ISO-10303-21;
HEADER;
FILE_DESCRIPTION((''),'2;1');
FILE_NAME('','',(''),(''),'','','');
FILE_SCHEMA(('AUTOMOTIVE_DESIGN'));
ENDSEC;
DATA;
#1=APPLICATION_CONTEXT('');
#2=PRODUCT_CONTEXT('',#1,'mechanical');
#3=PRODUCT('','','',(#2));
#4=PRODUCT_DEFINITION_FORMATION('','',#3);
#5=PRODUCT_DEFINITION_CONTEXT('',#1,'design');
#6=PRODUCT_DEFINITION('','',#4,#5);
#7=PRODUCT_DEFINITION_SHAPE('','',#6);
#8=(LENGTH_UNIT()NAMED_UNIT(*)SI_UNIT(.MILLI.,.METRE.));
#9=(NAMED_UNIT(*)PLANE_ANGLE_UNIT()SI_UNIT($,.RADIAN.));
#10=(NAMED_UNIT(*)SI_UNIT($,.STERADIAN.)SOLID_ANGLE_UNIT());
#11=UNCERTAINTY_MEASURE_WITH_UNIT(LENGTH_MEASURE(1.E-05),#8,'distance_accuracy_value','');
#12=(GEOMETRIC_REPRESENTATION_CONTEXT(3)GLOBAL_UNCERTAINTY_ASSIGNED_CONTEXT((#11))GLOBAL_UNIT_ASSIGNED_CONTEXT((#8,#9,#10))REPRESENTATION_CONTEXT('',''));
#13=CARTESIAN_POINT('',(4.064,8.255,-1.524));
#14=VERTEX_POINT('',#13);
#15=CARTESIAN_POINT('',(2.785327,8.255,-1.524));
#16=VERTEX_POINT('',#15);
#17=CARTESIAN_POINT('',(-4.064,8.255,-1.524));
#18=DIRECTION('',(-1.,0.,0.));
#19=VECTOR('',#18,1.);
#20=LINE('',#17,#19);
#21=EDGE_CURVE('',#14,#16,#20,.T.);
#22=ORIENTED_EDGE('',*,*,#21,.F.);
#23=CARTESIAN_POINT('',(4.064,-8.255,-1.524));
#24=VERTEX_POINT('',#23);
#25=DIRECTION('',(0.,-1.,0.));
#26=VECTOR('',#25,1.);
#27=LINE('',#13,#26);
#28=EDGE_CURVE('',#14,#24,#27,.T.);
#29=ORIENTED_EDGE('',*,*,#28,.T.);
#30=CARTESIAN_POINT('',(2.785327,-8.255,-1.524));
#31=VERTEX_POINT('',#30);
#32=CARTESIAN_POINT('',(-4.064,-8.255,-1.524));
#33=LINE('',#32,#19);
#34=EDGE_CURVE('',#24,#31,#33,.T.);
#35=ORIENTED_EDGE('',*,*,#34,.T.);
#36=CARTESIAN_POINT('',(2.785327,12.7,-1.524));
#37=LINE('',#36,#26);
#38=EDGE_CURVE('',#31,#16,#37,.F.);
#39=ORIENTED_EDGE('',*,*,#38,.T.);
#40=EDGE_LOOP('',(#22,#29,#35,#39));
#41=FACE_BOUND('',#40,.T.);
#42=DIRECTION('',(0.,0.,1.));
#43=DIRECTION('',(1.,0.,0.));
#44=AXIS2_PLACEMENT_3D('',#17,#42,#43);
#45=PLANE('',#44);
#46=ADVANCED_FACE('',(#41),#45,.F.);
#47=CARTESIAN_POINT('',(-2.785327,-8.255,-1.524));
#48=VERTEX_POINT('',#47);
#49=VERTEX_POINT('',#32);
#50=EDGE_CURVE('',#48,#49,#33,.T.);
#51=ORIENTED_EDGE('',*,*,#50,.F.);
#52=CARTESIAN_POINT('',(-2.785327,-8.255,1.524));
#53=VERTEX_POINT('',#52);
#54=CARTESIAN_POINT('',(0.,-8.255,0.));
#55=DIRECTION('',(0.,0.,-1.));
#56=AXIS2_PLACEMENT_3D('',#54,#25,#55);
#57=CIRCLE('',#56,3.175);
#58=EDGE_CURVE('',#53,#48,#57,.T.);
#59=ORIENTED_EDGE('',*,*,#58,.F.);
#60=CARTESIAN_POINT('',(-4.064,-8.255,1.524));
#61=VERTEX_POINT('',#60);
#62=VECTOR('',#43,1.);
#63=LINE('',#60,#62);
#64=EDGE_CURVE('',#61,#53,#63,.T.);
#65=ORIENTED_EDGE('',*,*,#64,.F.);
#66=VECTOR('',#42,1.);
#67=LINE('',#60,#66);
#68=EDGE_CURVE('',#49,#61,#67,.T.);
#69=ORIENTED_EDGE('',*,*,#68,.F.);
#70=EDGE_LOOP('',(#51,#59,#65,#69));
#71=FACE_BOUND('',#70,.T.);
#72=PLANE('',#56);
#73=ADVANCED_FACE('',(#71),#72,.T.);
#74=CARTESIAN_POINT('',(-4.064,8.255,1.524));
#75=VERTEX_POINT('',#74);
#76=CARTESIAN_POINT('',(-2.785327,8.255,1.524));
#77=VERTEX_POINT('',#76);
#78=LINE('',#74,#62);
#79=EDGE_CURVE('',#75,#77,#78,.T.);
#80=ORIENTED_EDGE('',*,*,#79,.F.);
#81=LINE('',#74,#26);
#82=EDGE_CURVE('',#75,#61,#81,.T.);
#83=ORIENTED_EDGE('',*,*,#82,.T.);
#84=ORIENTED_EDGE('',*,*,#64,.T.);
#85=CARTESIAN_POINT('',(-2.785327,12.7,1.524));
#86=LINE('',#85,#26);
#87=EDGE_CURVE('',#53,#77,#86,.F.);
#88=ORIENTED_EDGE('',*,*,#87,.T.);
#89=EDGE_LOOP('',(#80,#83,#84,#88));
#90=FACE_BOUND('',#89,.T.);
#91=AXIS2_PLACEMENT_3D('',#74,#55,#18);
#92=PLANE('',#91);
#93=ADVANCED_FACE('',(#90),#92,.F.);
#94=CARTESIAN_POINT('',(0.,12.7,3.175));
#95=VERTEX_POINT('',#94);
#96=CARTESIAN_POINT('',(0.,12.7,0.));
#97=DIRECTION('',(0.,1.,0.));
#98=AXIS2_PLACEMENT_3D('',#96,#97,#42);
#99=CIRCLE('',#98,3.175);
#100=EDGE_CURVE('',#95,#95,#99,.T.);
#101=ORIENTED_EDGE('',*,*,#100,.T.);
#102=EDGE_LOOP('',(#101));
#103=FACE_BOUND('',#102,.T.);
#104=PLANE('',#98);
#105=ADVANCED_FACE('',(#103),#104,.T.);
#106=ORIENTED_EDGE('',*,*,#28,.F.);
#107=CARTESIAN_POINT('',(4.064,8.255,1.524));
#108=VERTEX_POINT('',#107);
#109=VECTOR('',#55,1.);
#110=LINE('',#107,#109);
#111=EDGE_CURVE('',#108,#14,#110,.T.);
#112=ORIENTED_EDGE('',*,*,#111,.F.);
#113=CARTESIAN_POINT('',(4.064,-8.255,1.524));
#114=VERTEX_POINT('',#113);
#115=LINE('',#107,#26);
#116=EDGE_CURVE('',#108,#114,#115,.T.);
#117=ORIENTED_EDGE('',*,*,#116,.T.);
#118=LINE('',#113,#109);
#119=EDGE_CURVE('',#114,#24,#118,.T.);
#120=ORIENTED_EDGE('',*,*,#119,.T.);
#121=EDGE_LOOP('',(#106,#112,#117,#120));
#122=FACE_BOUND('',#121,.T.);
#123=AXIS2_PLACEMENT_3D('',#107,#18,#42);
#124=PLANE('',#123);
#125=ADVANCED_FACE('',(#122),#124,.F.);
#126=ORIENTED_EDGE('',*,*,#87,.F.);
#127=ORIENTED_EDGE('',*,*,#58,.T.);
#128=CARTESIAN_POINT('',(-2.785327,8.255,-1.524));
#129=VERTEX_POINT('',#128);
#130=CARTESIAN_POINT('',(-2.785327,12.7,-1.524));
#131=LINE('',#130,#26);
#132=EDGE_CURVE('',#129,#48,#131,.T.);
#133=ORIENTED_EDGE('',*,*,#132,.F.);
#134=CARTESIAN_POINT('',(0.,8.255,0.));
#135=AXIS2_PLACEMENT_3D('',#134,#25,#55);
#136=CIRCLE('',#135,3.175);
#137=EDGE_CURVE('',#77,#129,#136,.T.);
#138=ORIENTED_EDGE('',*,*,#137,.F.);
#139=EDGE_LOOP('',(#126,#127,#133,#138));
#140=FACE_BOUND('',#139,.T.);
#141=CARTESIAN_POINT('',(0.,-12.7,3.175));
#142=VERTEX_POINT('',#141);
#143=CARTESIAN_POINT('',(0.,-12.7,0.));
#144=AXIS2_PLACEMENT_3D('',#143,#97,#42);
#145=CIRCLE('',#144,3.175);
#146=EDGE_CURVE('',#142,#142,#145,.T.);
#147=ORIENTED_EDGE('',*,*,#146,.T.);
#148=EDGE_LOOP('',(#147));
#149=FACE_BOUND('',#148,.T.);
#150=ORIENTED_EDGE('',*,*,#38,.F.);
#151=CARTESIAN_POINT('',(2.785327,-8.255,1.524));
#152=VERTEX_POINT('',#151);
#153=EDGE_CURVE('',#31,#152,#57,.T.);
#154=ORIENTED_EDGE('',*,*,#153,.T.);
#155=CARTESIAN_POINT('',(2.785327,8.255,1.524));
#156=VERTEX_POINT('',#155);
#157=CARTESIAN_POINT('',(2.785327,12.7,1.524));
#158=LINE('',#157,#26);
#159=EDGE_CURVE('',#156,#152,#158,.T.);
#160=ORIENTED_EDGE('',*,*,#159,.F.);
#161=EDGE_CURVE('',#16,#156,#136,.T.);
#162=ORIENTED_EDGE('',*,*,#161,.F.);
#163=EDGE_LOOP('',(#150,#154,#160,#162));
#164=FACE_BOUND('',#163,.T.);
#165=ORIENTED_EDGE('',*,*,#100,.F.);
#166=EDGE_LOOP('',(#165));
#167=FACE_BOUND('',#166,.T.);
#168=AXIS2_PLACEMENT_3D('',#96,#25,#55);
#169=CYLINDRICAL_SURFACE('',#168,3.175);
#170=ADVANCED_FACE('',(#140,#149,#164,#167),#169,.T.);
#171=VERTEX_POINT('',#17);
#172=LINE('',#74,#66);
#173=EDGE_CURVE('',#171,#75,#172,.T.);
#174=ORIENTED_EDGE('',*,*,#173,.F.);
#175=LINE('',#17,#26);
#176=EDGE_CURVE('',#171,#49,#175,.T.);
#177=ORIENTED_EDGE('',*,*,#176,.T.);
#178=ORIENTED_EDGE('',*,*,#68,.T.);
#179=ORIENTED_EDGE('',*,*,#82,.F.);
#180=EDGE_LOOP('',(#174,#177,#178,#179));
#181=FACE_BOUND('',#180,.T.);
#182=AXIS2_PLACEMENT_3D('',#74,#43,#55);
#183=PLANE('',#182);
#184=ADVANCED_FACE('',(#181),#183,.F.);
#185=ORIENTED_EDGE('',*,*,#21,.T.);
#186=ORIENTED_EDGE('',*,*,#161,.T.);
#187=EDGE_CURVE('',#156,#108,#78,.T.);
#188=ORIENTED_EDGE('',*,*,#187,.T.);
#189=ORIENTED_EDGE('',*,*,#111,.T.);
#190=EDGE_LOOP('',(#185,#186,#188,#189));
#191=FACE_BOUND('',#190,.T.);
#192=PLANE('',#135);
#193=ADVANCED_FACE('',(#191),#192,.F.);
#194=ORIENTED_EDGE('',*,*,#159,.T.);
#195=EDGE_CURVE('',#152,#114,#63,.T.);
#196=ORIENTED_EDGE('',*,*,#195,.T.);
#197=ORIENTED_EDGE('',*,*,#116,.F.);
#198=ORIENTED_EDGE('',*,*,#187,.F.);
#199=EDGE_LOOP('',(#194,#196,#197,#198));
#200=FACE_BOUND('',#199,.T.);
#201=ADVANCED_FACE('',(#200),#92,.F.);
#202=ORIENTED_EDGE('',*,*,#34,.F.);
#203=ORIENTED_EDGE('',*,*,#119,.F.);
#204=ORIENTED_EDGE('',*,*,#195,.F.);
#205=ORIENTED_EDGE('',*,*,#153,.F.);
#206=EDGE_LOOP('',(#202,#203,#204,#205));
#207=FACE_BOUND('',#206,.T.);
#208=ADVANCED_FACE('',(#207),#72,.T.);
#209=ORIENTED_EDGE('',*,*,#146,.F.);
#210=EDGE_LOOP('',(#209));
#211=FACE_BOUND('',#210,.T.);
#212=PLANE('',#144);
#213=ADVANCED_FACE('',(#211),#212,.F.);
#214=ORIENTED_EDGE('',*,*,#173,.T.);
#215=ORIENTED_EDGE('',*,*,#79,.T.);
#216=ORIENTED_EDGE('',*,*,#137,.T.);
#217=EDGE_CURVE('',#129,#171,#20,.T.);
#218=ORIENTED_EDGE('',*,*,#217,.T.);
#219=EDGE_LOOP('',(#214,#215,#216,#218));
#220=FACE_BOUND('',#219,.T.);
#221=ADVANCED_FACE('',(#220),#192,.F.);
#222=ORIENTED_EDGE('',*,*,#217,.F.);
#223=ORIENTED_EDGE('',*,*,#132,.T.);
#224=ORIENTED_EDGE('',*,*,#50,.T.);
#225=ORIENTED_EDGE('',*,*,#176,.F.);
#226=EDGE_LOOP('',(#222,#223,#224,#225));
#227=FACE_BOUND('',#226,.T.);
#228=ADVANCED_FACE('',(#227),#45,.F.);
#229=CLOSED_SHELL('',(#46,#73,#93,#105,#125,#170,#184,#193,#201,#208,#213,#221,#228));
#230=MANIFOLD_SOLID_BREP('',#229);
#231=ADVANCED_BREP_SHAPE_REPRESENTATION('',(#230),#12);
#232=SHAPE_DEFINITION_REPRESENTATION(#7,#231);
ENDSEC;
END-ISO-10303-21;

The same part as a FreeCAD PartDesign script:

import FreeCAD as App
import Part
import Sketcher

V = App.Vector
Q = App.Units.Quantity

doc = App.newDocument("Part")
body = doc.addObject("PartDesign::Body", "Body")

# Sketch on XZ plane
sketch1 = doc.addObject("Sketcher::SketchObject", "Sketch")
body.addObject(sketch1)
sketch1.AttachmentSupport = (doc.XZ_Plane, [""])
sketch1.MapMode = "FlatFace"
sketch1.addGeometry(Part.Circle(V(0, 0, 0), V(0, 0, 1), 3.2), False)
sketch1.addConstraint(Sketcher.Constraint("Coincident", 0, 3, -1, 1))
sketch1.addConstraint(Sketcher.Constraint("Diameter", 0, Q("0.25 in")))
pad1 = doc.addObject("PartDesign::Pad", "Pad")
body.addObject(pad1)
pad1.Profile = sketch1
pad1.Length = Q("1 in")
pad1.Midplane = True

# Sketch on XZ plane
sketch2 = doc.addObject("Sketcher::SketchObject", "Sketch001")
body.addObject(sketch2)
sketch2.AttachmentSupport = (doc.XZ_Plane, [""])
sketch2.MapMode = "FlatFace"
sketch2.addGeometry(Part.LineSegment(V(-4.1, -1.5, 0), V(-4.1, 1.5, 0)), False)
sketch2.addGeometry(Part.LineSegment(V(-4.1, 1.5, 0), V(4.1, 1.5, 0)), False)
sketch2.addGeometry(Part.LineSegment(V(4.1, 1.5, 0), V(4.1, -1.5, 0)), False)
sketch2.addGeometry(Part.LineSegment(V(4.1, -1.5, 0), V(-4.1, -1.5, 0)), False)
sketch2.addConstraint(Sketcher.Constraint("Coincident", 0, 2, 1, 1))
sketch2.addConstraint(Sketcher.Constraint("Coincident", 1, 2, 2, 1))
sketch2.addConstraint(Sketcher.Constraint("Coincident", 2, 2, 3, 1))
sketch2.addConstraint(Sketcher.Constraint("Coincident", 3, 2, 0, 1))
sketch2.addConstraint(Sketcher.Constraint("Vertical", 0))
sketch2.addConstraint(Sketcher.Constraint("Horizontal", 1))
sketch2.addConstraint(Sketcher.Constraint("Vertical", 2))
sketch2.addConstraint(Sketcher.Constraint("Horizontal", 3))
sketch2.addConstraint(Sketcher.Constraint("Symmetric", 0, 2, 2, 2, -1, 1))
sketch2.addConstraint(Sketcher.Constraint("DistanceX", 1, 1, 1, 2, Q("0.32 in")))
sketch2.addConstraint(Sketcher.Constraint("DistanceY", 0, 1, 0, 2, Q("0.12 in")))
pad2 = doc.addObject("PartDesign::Pad", "Pad001")
body.addObject(pad2)
pad2.Profile = sketch2
pad2.Length = Q("0.65 in")
pad2.Midplane = True

doc.recompute()
